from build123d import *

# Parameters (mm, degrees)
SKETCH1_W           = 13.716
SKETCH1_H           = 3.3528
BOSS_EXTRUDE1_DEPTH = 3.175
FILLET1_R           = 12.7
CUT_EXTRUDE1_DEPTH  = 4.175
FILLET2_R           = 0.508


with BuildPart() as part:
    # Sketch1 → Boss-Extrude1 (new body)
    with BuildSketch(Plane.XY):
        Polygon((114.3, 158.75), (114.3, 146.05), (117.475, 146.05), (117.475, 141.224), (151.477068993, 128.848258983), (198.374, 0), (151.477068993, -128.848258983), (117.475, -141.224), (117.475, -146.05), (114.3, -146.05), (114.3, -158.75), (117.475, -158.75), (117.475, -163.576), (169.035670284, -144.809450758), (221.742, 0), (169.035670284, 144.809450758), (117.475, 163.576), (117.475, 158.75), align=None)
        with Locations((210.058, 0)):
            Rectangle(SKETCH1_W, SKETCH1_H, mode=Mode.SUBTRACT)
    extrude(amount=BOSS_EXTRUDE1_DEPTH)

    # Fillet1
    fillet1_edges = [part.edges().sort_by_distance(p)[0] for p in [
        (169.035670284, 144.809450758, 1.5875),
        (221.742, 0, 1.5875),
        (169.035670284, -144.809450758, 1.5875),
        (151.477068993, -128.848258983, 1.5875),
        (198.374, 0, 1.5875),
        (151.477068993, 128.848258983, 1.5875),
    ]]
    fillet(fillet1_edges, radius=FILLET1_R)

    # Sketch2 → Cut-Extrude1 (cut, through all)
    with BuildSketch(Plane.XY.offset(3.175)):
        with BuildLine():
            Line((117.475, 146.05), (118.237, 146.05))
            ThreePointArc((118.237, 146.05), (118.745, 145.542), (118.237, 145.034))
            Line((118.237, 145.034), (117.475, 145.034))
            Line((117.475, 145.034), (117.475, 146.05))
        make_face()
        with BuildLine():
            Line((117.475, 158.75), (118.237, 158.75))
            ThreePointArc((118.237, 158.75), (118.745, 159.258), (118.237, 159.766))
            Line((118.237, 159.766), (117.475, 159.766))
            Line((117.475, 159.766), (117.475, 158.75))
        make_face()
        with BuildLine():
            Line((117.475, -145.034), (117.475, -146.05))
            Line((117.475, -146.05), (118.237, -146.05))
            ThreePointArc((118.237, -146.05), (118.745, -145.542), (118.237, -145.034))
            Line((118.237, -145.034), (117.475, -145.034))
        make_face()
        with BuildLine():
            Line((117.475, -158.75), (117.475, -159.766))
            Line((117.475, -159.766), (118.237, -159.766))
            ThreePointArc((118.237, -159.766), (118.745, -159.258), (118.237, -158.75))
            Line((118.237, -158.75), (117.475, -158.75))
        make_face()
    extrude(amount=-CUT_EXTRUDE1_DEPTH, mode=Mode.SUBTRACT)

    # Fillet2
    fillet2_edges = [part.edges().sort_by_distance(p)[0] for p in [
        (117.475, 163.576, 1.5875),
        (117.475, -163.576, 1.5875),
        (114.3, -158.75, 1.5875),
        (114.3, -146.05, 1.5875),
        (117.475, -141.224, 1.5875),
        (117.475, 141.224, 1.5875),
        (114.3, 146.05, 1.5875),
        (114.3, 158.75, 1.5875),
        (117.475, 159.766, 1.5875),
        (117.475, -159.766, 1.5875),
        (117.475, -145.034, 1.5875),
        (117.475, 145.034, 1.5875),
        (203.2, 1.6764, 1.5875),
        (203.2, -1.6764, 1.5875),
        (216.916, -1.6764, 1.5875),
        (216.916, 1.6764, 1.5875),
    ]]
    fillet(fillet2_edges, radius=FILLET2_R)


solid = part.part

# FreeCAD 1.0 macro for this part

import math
import FreeCAD as App
import Part
import Sketcher
from FreeCAD import Vector
Q = App.Units.Quantity


def edges_at(feature, points):
    """Names of the edges that pass closest to the given points."""
    edges = feature.Shape.Edges
    near = lambda p: min(range(len(edges)), key=lambda i: edges[i].distToShape(Part.Vertex(*p))[0])
    return sorted({f"Edge{near(p) + 1}" for p in points})

doc = App.newDocument("Part")
body = doc.addObject("PartDesign::Body", "Body")

# Sketch on XY plane
sketch1 = body.newObject("Sketcher::SketchObject", "Sketch")
sketch1.AttachmentSupport = (doc.getObject("XY_Plane"), [""])
sketch1.MapMode = "FlatFace"
sketch1.addGeometry([
    Part.LineSegment(Vector(114.3, 158.8, 0), Vector(114.3, 146.1, 0)),  # 0
    Part.LineSegment(Vector(114.3, 146.1, 0), Vector(117.5, 146.1, 0)),  # 1
    Part.LineSegment(Vector(117.5, 146.1, 0), Vector(117.5, 141.2, 0)),  # 2
    Part.LineSegment(Vector(117.5, 141.2, 0), Vector(151.5, 128.8, 0)),  # 3
    Part.LineSegment(Vector(151.5, 128.8, 0), Vector(198.4, 0, 0)),  # 4
    Part.LineSegment(Vector(198.4, 0, 0), Vector(151.5, -128.8, 0)),  # 5
    Part.LineSegment(Vector(151.5, -128.8, 0), Vector(117.5, -141.2, 0)),  # 6
    Part.LineSegment(Vector(117.5, -141.2, 0), Vector(117.5, -146.1, 0)),  # 7
    Part.LineSegment(Vector(117.5, -146.1, 0), Vector(114.3, -146.1, 0)),  # 8
    Part.LineSegment(Vector(114.3, -146.1, 0), Vector(114.3, -158.8, 0)),  # 9
    Part.LineSegment(Vector(114.3, -158.8, 0), Vector(117.5, -158.8, 0)),  # 10
    Part.LineSegment(Vector(117.5, -158.8, 0), Vector(117.5, -163.6, 0)),  # 11
    Part.LineSegment(Vector(117.5, -163.6, 0), Vector(169, -144.8, 0)),  # 12
    Part.LineSegment(Vector(169, -144.8, 0), Vector(221.7, 0, 0)),  # 13
    Part.LineSegment(Vector(221.7, 0, 0), Vector(169, 144.8, 0)),  # 14
    Part.LineSegment(Vector(169, 144.8, 0), Vector(117.5, 163.6, 0)),  # 15
    Part.LineSegment(Vector(117.5, 163.6, 0), Vector(117.5, 158.8, 0)),  # 16
    Part.LineSegment(Vector(117.5, 158.8, 0), Vector(114.3, 158.8, 0)),  # 17
    Part.LineSegment(Vector(216.9, -1.7, 0), Vector(203.2, -1.7, 0)),  # 18
    Part.LineSegment(Vector(203.2, -1.7, 0), Vector(203.2, 1.7, 0)),  # 19
    Part.LineSegment(Vector(203.2, 1.7, 0), Vector(216.9, 1.7, 0)),  # 20
    Part.LineSegment(Vector(216.9, 1.7, 0), Vector(216.9, -1.7, 0)),  # 21
], False)
sketch1.addConstraint([
    Sketcher.Constraint("Coincident", 0, 2, 1, 1),
    Sketcher.Constraint("Coincident", 1, 2, 2, 1),
    Sketcher.Constraint("Coincident", 2, 2, 3, 1),
    Sketcher.Constraint("Coincident", 3, 2, 4, 1),
    Sketcher.Constraint("Coincident", 4, 2, 5, 1),
    Sketcher.Constraint("Coincident", 5, 2, 6, 1),
    Sketcher.Constraint("Coincident", 6, 2, 7, 1),
    Sketcher.Constraint("Coincident", 7, 2, 8, 1),
    Sketcher.Constraint("Coincident", 8, 2, 9, 1),
    Sketcher.Constraint("Coincident", 9, 2, 10, 1),
    Sketcher.Constraint("Coincident", 10, 2, 11, 1),
    Sketcher.Constraint("Coincident", 11, 2, 12, 1),
    Sketcher.Constraint("Coincident", 12, 2, 13, 1),
    Sketcher.Constraint("Coincident", 13, 2, 14, 1),
    Sketcher.Constraint("Coincident", 14, 2, 15, 1),
    Sketcher.Constraint("Coincident", 15, 2, 16, 1),
    Sketcher.Constraint("Coincident", 16, 2, 17, 1),
    Sketcher.Constraint("Coincident", 17, 2, 0, 1),
    Sketcher.Constraint("Coincident", 18, 2, 19, 1),
    Sketcher.Constraint("Coincident", 19, 2, 20, 1),
    Sketcher.Constraint("Coincident", 20, 2, 21, 1),
    Sketcher.Constraint("Coincident", 21, 2, 18, 1),
    Sketcher.Constraint("Vertical", 0),
    Sketcher.Constraint("Horizontal", 1),
    Sketcher.Constraint("Vertical", 2),
    Sketcher.Constraint("Vertical", 7),
    Sketcher.Constraint("Horizontal", 8),
    Sketcher.Constraint("Vertical", 9),
    Sketcher.Constraint("Horizontal", 10),
    Sketcher.Constraint("Vertical", 11),
    Sketcher.Constraint("Vertical", 16),
    Sketcher.Constraint("Horizontal", 17),
    Sketcher.Constraint("Horizontal", 18),
    Sketcher.Constraint("Vertical", 19),
    Sketcher.Constraint("Horizontal", 20),
    Sketcher.Constraint("Vertical", 21),
    Sketcher.Constraint("Symmetric", 3, 2, 5, 2, -1),
    Sketcher.Constraint("Symmetric", 2, 2, 6, 2, -1),
    Sketcher.Constraint("Symmetric", 0, 2, 8, 2, -1),
    Sketcher.Constraint("Symmetric", 12, 2, 14, 2, -1),
    Sketcher.Constraint("Symmetric", 11, 2, 15, 2, -1),
    Sketcher.Constraint("PointOnObject", 4, 2, -1),
    Sketcher.Constraint("PointOnObject", 13, 2, -1),
    Sketcher.Constraint("Perpendicular", 3, 5),
    Sketcher.Constraint("Parallel", 6, 12),
    Sketcher.Constraint("Parallel", 5, 13),
    Sketcher.Constraint("Vertical", 7, 2, 10, 2),
    Sketcher.Constraint("Equal", 0, 9),
    Sketcher.Constraint("Equal", 7, 11),
    Sketcher.Constraint("DistanceY", 0, 2, 0, 1, Q("0.5 in")),
    Sketcher.Constraint("DistanceX", -1, 1, 18, 2, Q("8 in")),
    Sketcher.Constraint("Angle", 3, Q("-20 deg")),
    Sketcher.Constraint("DistanceX", 18, 2, 18, 1, Q("0.54 in")),
    Sketcher.Constraint("DistanceY", 2, 2, 2, 1, Q("0.19 in")),
    Sketcher.Constraint("DistanceX", -1, 1, 0, 2, Q("4.5 in")),
    Sketcher.Constraint("DistanceX", 1, 1, 1, 2, Q("0.125 in")),
    Sketcher.Constraint("DistanceY", 19, 1, 19, 2, Q("0.132 in")),
    Sketcher.Constraint("DistanceY", -1, 1, 0, 2, Q("5.75 in")),
    Sketcher.Constraint("DistanceX", -1, 1, 4, 2, Q("7.81 in")),
    Sketcher.Constraint("DistanceX", -1, 1, 13, 2, Q("8.73 in")),
    Sketcher.Constraint("DistanceY", 18, 2, -1, 1, Q("0.066 in")),
])
pad1 = body.newObject("PartDesign::Pad", "Pad")
pad1.Profile = sketch1
pad1.Length = Q("0.125 in")
doc.recompute()

fillet = body.newObject("PartDesign::Fillet", "Fillet")
fillet.Base = (pad1, edges_at(pad1, [
    (169.036, 144.809, 1.587),
    (221.742, 0, 1.587),
    (169.036, -144.809, 1.587),
    (151.477, -128.848, 1.587),
    (198.374, 0, 1.587),
    (151.477, 128.848, 1.587),
]))
fillet.Radius = Q("0.5 in")

# Sketch on XY plane
sketch2 = body.newObject("Sketcher::SketchObject", "Sketch001")
sketch2.AttachmentSupport = (doc.getObject("XY_Plane"), [""])
sketch2.MapMode = "FlatFace"
sketch2.AttachmentOffset = App.Placement(Vector(0, 0, 0.125 * 25.4), App.Rotation())
sketch2.addGeometry([
    Part.LineSegment(Vector(118.2, 146.1, 0), Vector(117.5, 146.1, 0)),  # 0
    Part.LineSegment(Vector(117.5, 146.1, 0), Vector(117.5, 145, 0)),  # 1
    Part.LineSegment(Vector(117.5, 145, 0), Vector(118.2, 145, 0)),  # 2
    Part.ArcOfCircle(Part.Circle(Vector(118.2, 145.5, 0), Vector(0, 0, 1), 0.5), math.radians(-90), math.radians(90)),  # 3
    Part.LineSegment(Vector(117.5, 158.8, 0), Vector(118.2, 158.8, 0)),  # 4
    Part.ArcOfCircle(Part.Circle(Vector(118.2, 159.3, 0), Vector(0, 0, 1), 0.5), math.radians(-90), math.radians(90)),  # 5
    Part.LineSegment(Vector(118.2, 159.8, 0), Vector(117.5, 159.8, 0)),  # 6
    Part.LineSegment(Vector(117.5, 159.8, 0), Vector(117.5, 158.8, 0)),  # 7
    Part.LineSegment(Vector(117.5, -145, 0), Vector(117.5, -146.1, 0)),  # 8
    Part.LineSegment(Vector(117.5, -146.1, 0), Vector(118.2, -146.1, 0)),  # 9
    Part.ArcOfCircle(Part.Circle(Vector(118.2, -145.5, 0), Vector(0, 0, 1), 0.5), math.radians(-90), math.radians(90)),  # 10
    Part.LineSegment(Vector(118.2, -145, 0), Vector(117.5, -145, 0)),  # 11
    Part.LineSegment(Vector(117.5, -158.8, 0), Vector(117.5, -159.8, 0)),  # 12
    Part.LineSegment(Vector(117.5, -159.8, 0), Vector(118.2, -159.8, 0)),  # 13
    Part.ArcOfCircle(Part.Circle(Vector(118.2, -159.3, 0), Vector(0, 0, 1), 0.5), math.radians(-90), math.radians(90)),  # 14
    Part.LineSegment(Vector(118.2, -158.8, 0), Vector(117.5, -158.8, 0)),  # 15
], False)
sketch2.addConstraint([
    Sketcher.Constraint("Coincident", 0, 2, 1, 1),
    Sketcher.Constraint("Coincident", 1, 2, 2, 1),
    Sketcher.Constraint("Tangent", 2, 2, 3, 1),
    Sketcher.Constraint("Tangent", 3, 2, 0, 1),
    Sketcher.Constraint("Tangent", 4, 2, 5, 1),
    Sketcher.Constraint("Tangent", 5, 2, 6, 1),
    Sketcher.Constraint("Coincident", 6, 2, 7, 1),
    Sketcher.Constraint("Coincident", 7, 2, 4, 1),
    Sketcher.Constraint("Coincident", 8, 2, 9, 1),
    Sketcher.Constraint("Tangent", 9, 2, 10, 1),
    Sketcher.Constraint("Tangent", 10, 2, 11, 1),
    Sketcher.Constraint("Coincident", 11, 2, 8, 1),
    Sketcher.Constraint("Coincident", 12, 2, 13, 1),
    Sketcher.Constraint("Tangent", 13, 2, 14, 1),
    Sketcher.Constraint("Tangent", 14, 2, 15, 1),
    Sketcher.Constraint("Coincident", 15, 2, 12, 1),
    Sketcher.Constraint("Horizontal", 0),
    Sketcher.Constraint("Vertical", 1),
    Sketcher.Constraint("Horizontal", 2),
    Sketcher.Constraint("Horizontal", 4),
    Sketcher.Constraint("Horizontal", 6),
    Sketcher.Constraint("Vertical", 7),
    Sketcher.Constraint("Vertical", 8),
    Sketcher.Constraint("Horizontal", 9),
    Sketcher.Constraint("Horizontal", 11),
    Sketcher.Constraint("Vertical", 12),
    Sketcher.Constraint("Horizontal", 13),
    Sketcher.Constraint("Horizontal", 15),
    Sketcher.Constraint("Equal", 3, 5),
    Sketcher.Constraint("Equal", 5, 10),
    Sketcher.Constraint("Equal", 10, 14),
    Sketcher.Constraint("Symmetric", 3, 3, 10, 3, -1),
    Sketcher.Constraint("Symmetric", 5, 3, 14, 3, -1),
    Sketcher.Constraint("Vertical", 3, 3, 5, 3),
    Sketcher.Constraint("Vertical", 1, 2, 6, 2),
    Sketcher.Constraint("Vertical", 7, 2, 8, 2),
    Sketcher.Constraint("Vertical", 11, 2, 12, 2),
    Sketcher.Constraint("Radius", 3, Q("0.02 in")),
    Sketcher.Constraint("DistanceY", 10, 3, 5, 3, Q("12 in")),
    Sketcher.Constraint("DistanceX", 0, 2, 0, 1, Q("0.03 in")),
    Sketcher.Constraint("DistanceY", 3, 2, 4, 2, Q("0.5 in")),
    Sketcher.Constraint("DistanceX", -1, 1, 3, 3, Q("4.655 in")),
])
pocket1 = body.newObject("PartDesign::Pocket", "Pocket")
pocket1.Profile = sketch2
pocket1.Type = "ThroughAll"
doc.recompute()

fillet2 = body.newObject("PartDesign::Fillet", "Fillet001")
fillet2.Base = (pocket1, edges_at(pocket1, [
    (117.475, 163.576, 1.587),
    (117.475, -163.576, 1.587),
    (114.3, -158.75, 1.587),
    (114.3, -146.05, 1.587),
    (117.475, -141.224, 1.587),
    (117.475, 141.224, 1.587),
    (114.3, 146.05, 1.587),
    (114.3, 158.75, 1.587),
    (117.475, 159.766, 1.587),
    (117.475, -159.766, 1.587),
    (117.475, -145.034, 1.587),
    (117.475, 145.034, 1.587),
    (203.2, 1.676, 1.587),
    (203.2, -1.676, 1.587),
    (216.916, -1.676, 1.587),
    (216.916, 1.676, 1.587),
]))
fillet2.Radius = Q("0.02 in")

doc.recompute()
